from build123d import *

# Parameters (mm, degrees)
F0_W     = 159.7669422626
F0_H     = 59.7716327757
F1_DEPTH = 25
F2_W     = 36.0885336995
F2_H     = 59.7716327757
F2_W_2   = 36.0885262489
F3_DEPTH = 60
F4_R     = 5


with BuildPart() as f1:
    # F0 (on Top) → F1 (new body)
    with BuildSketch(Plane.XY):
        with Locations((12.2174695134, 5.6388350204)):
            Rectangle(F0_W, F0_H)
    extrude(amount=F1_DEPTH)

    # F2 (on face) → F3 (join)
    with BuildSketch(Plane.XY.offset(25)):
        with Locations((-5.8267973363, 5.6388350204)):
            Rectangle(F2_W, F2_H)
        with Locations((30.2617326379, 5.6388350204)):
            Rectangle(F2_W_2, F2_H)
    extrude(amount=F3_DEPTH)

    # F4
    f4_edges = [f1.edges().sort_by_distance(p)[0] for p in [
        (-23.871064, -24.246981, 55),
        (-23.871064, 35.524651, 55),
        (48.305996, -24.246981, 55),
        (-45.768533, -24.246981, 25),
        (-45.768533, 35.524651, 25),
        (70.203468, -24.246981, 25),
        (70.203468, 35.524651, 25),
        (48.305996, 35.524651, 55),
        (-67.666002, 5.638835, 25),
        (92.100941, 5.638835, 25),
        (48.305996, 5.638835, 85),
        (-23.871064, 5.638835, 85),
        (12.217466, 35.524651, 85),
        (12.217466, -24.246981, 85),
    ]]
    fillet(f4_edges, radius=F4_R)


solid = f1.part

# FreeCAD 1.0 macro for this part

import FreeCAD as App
import Part
import Sketcher
Q = App.Units.Quantity


def edges_at(feature, points):
    """Names of the edges that pass closest to the given points."""
    edges = feature.Shape.Edges
    near = lambda p: min(range(len(edges)), key=lambda i: edges[i].distToShape(Part.Vertex(*p))[0])
    return sorted({f"Edge{near(p) + 1}" for p in points})


def add_polygon(sketch, points):
    """Adds a closed chain of lines whose ends are joined by coincident constraints."""
    first, n = sketch.GeometryCount, len(points)
    for a, b in zip(points, points[1:] + points[:1]):
        sketch.addGeometry(Part.LineSegment(App.Vector(*a, 0), App.Vector(*b, 0)), False)
    for i in range(n):
        sketch.addConstraint(Sketcher.Constraint("Coincident", first + i, 2, first + (i + 1) % n, 1))

doc = App.newDocument("Part")
body = doc.addObject("PartDesign::Body", "Body")

sketch1 = body.newObject("Sketcher::SketchObject", "Sketch")
sketch1.AttachmentSupport = (doc.getObject("XY_Plane"), [""])
sketch1.MapMode = "FlatFace"
add_polygon(sketch1, [(-68, 36), (-68, -24), (92, -24), (92, 36)])
sketch1.addConstraint([
    Sketcher.Constraint("Vertical", 0),
    Sketcher.Constraint("Horizontal", 1),
    Sketcher.Constraint("Vertical", 2),
    Sketcher.Constraint("Horizontal", 3),
    Sketcher.Constraint("DistanceX", 0, 2, -1, 1, Q("67.666002 mm")),
    Sketcher.Constraint("DistanceX", 1, 1, 1, 2, Q("159.766942 mm")),
    Sketcher.Constraint("DistanceY", 0, 2, 0, 1, Q("59.771633 mm")),
    Sketcher.Constraint("DistanceY", 0, 2, -1, 1, Q("24.246981 mm")),
])
pad1 = body.newObject("PartDesign::Pad", "Pad")
pad1.Profile = sketch1
pad1.Length = 25

sketch2 = body.newObject("Sketcher::SketchObject", "Sketch001")
sketch2.AttachmentSupport = (doc.getObject("XY_Plane"), [""])
sketch2.MapMode = "FlatFace"
sketch2.AttachmentOffset = App.Placement(App.Vector(0, 0, 25), App.Rotation())
add_polygon(sketch2, [(-24, 36), (-24, -24), (48, -24), (48, 36)])
sketch2.addConstraint([
    Sketcher.Constraint("Vertical", 0),
    Sketcher.Constraint("Horizontal", 1),
    Sketcher.Constraint("Vertical", 2),
    Sketcher.Constraint("Horizontal", 3),
    Sketcher.Constraint("DistanceX", 1, 1, 1, 2, Q("72.17706 mm")),
    Sketcher.Constraint("DistanceY", 0, 2, 0, 1, Q("59.771633 mm")),
    Sketcher.Constraint("DistanceY", 0, 2, -1, 1, Q("24.246981 mm")),
    Sketcher.Constraint("DistanceX", 0, 2, -1, 1, Q("23.871064 mm")),
])
pad2 = body.newObject("PartDesign::Pad", "Pad001")
pad2.Profile = sketch2
pad2.Length = 60
doc.recompute()

fillet = body.newObject("PartDesign::Fillet", "Fillet")
fillet.Base = (pad2, edges_at(pad2, [
    (-23.871, -24.247, 55),
    (-23.871, 35.525, 55),
    (48.306, -24.247, 55),
    (-45.769, -24.247, 25),
    (-45.769, 35.525, 25),
    (70.203, -24.247, 25),
    (70.203, 35.525, 25),
    (48.306, 35.525, 55),
    (-67.666, 5.639, 25),
    (92.101, 5.639, 25),
    (48.306, 5.639, 85),
    (-23.871, 5.639, 85),
    (12.217, 35.525, 85),
    (12.217, -24.247, 85),
]))
fillet.Radius = 5

doc.recompute()
